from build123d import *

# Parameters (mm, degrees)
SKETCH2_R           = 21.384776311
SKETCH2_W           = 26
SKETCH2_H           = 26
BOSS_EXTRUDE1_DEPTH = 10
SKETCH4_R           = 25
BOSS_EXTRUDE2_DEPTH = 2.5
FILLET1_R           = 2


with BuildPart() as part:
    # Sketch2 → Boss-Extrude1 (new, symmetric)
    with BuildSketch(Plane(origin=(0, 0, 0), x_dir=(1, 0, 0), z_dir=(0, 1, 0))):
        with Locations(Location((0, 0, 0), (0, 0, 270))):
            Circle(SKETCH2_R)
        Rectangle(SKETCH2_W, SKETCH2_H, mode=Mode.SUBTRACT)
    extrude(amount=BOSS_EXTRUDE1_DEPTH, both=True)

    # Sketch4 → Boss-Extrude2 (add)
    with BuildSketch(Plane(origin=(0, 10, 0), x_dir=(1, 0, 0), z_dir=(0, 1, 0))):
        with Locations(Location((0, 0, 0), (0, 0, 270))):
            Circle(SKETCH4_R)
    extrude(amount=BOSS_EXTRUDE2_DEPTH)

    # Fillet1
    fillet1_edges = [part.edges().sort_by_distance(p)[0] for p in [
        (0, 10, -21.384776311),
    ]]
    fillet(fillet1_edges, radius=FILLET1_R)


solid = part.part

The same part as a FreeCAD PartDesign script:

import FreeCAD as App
import Part
import Sketcher
Q = App.Units.Quantity


def edges_at(feature, points):
    """Names of the edges that pass closest to the given points."""
    edges = feature.Shape.Edges
    near = lambda p: min(range(len(edges)), key=lambda i: edges[i].distToShape(Part.Vertex(*p))[0])
    return sorted({f"Edge{near(p) + 1}" for p in points})

doc = App.newDocument("Part")
params = doc.addObject("Spreadsheet::Sheet", "Params")
for row, (alias, value) in enumerate([
    ("sketch1_width", "26 mm"),
    ("pad1_length", "20 mm"),
    ("sketch2_diameter", "50 mm"),
    ("pad2_length", "2.5 mm"),
    ("fillet_radius", "2 mm"),
], start=1):
    params.set(f"A{row}", alias)
    params.set(f"B{row}", "=" + value)
    params.setAlias(f"B{row}", alias)

body = doc.addObject("PartDesign::Body", "Body")

sketch1 = doc.addObject("Sketcher::SketchObject", "Sketch")
body.addObject(sketch1)
sketch1.AttachmentSupport = (doc.XZ_Plane, [""])
sketch1.MapMode = "FlatFace"
sketch1.addGeometry(Part.Circle(App.Vector(0, 0, 0), App.Vector(0, 0, 1), 21.384776), False)
sketch1.addGeometry(Part.LineSegment(App.Vector(13, 13, 0), App.Vector(-13, 13, 0)), False)
sketch1.addGeometry(Part.LineSegment(App.Vector(-13, 13, 0), App.Vector(-13, -13, 0)), False)
sketch1.addGeometry(Part.LineSegment(App.Vector(-13, -13, 0), App.Vector(13, -13, 0)), False)
sketch1.addGeometry(Part.LineSegment(App.Vector(13, -13, 0), App.Vector(13, 13, 0)), False)
sketch1.addConstraint(Sketcher.Constraint("Coincident", 1, 2, 2, 1))
sketch1.addConstraint(Sketcher.Constraint("Coincident", 2, 2, 3, 1))
sketch1.addConstraint(Sketcher.Constraint("Coincident", 3, 2, 4, 1))
sketch1.addConstraint(Sketcher.Constraint("Coincident", 4, 2, 1, 1))
sketch1.addConstraint(Sketcher.Constraint("Horizontal", 1))
sketch1.addConstraint(Sketcher.Constraint("Vertical", 2))
sketch1.addConstraint(Sketcher.Constraint("Horizontal", 3))
sketch1.addConstraint(Sketcher.Constraint("Vertical", 4))
sketch1.addConstraint(Sketcher.Constraint("Coincident", 0, 3, -1, 1))
sketch1.addConstraint(Sketcher.Constraint("Symmetric", 1, 2, 3, 2, -1, 1))
sketch1.addConstraint(Sketcher.Constraint("Equal", 3, 2))
sketch1.addConstraint(Sketcher.Constraint("DistanceX", 1, 2, 1, 1, Q("26 mm")))
sketch1.addConstraint(Sketcher.Constraint("Diameter", 0, Q("42.769553 mm")))
sketch1.setExpression("Constraints[11]", "Params.sketch1_width")
pad1 = doc.addObject("PartDesign::Pad", "Pad")
body.addObject(pad1)
pad1.Profile = sketch1
pad1.setExpression("Length", "Params.pad1_length")
pad1.Midplane = True

sketch2 = doc.addObject("Sketcher::SketchObject", "Sketch001")
body.addObject(sketch2)
sketch2.AttachmentSupport = (doc.XZ_Plane, [""])
sketch2.MapMode = "FlatFace"
sketch2.AttachmentOffset = App.Placement(App.Vector(0, 0, -10), App.Rotation())
sketch2.addGeometry(Part.Circle(App.Vector(0, 0, 0), App.Vector(0, 0, 1), 25), False)
sketch2.addConstraint(Sketcher.Constraint("Coincident", 0, 3, -1, 1))
sketch2.addConstraint(Sketcher.Constraint("Diameter", 0, Q("50 mm")))
sketch2.setExpression("Constraints[1]", "Params.sketch2_diameter")
pad2 = doc.addObject("PartDesign::Pad", "Pad001")
body.addObject(pad2)
pad2.Profile = sketch2
pad2.setExpression("Length", "Params.pad2_length")
pad2.Reversed = True
doc.recompute()

fillet = doc.addObject("PartDesign::Fillet", "Fillet")
body.addObject(fillet)
fillet.Base = (pad2, edges_at(pad2, [(0, 10, -21.385)]))
fillet.setExpression("Radius", "Params.fillet_radius")

doc.recompute()
